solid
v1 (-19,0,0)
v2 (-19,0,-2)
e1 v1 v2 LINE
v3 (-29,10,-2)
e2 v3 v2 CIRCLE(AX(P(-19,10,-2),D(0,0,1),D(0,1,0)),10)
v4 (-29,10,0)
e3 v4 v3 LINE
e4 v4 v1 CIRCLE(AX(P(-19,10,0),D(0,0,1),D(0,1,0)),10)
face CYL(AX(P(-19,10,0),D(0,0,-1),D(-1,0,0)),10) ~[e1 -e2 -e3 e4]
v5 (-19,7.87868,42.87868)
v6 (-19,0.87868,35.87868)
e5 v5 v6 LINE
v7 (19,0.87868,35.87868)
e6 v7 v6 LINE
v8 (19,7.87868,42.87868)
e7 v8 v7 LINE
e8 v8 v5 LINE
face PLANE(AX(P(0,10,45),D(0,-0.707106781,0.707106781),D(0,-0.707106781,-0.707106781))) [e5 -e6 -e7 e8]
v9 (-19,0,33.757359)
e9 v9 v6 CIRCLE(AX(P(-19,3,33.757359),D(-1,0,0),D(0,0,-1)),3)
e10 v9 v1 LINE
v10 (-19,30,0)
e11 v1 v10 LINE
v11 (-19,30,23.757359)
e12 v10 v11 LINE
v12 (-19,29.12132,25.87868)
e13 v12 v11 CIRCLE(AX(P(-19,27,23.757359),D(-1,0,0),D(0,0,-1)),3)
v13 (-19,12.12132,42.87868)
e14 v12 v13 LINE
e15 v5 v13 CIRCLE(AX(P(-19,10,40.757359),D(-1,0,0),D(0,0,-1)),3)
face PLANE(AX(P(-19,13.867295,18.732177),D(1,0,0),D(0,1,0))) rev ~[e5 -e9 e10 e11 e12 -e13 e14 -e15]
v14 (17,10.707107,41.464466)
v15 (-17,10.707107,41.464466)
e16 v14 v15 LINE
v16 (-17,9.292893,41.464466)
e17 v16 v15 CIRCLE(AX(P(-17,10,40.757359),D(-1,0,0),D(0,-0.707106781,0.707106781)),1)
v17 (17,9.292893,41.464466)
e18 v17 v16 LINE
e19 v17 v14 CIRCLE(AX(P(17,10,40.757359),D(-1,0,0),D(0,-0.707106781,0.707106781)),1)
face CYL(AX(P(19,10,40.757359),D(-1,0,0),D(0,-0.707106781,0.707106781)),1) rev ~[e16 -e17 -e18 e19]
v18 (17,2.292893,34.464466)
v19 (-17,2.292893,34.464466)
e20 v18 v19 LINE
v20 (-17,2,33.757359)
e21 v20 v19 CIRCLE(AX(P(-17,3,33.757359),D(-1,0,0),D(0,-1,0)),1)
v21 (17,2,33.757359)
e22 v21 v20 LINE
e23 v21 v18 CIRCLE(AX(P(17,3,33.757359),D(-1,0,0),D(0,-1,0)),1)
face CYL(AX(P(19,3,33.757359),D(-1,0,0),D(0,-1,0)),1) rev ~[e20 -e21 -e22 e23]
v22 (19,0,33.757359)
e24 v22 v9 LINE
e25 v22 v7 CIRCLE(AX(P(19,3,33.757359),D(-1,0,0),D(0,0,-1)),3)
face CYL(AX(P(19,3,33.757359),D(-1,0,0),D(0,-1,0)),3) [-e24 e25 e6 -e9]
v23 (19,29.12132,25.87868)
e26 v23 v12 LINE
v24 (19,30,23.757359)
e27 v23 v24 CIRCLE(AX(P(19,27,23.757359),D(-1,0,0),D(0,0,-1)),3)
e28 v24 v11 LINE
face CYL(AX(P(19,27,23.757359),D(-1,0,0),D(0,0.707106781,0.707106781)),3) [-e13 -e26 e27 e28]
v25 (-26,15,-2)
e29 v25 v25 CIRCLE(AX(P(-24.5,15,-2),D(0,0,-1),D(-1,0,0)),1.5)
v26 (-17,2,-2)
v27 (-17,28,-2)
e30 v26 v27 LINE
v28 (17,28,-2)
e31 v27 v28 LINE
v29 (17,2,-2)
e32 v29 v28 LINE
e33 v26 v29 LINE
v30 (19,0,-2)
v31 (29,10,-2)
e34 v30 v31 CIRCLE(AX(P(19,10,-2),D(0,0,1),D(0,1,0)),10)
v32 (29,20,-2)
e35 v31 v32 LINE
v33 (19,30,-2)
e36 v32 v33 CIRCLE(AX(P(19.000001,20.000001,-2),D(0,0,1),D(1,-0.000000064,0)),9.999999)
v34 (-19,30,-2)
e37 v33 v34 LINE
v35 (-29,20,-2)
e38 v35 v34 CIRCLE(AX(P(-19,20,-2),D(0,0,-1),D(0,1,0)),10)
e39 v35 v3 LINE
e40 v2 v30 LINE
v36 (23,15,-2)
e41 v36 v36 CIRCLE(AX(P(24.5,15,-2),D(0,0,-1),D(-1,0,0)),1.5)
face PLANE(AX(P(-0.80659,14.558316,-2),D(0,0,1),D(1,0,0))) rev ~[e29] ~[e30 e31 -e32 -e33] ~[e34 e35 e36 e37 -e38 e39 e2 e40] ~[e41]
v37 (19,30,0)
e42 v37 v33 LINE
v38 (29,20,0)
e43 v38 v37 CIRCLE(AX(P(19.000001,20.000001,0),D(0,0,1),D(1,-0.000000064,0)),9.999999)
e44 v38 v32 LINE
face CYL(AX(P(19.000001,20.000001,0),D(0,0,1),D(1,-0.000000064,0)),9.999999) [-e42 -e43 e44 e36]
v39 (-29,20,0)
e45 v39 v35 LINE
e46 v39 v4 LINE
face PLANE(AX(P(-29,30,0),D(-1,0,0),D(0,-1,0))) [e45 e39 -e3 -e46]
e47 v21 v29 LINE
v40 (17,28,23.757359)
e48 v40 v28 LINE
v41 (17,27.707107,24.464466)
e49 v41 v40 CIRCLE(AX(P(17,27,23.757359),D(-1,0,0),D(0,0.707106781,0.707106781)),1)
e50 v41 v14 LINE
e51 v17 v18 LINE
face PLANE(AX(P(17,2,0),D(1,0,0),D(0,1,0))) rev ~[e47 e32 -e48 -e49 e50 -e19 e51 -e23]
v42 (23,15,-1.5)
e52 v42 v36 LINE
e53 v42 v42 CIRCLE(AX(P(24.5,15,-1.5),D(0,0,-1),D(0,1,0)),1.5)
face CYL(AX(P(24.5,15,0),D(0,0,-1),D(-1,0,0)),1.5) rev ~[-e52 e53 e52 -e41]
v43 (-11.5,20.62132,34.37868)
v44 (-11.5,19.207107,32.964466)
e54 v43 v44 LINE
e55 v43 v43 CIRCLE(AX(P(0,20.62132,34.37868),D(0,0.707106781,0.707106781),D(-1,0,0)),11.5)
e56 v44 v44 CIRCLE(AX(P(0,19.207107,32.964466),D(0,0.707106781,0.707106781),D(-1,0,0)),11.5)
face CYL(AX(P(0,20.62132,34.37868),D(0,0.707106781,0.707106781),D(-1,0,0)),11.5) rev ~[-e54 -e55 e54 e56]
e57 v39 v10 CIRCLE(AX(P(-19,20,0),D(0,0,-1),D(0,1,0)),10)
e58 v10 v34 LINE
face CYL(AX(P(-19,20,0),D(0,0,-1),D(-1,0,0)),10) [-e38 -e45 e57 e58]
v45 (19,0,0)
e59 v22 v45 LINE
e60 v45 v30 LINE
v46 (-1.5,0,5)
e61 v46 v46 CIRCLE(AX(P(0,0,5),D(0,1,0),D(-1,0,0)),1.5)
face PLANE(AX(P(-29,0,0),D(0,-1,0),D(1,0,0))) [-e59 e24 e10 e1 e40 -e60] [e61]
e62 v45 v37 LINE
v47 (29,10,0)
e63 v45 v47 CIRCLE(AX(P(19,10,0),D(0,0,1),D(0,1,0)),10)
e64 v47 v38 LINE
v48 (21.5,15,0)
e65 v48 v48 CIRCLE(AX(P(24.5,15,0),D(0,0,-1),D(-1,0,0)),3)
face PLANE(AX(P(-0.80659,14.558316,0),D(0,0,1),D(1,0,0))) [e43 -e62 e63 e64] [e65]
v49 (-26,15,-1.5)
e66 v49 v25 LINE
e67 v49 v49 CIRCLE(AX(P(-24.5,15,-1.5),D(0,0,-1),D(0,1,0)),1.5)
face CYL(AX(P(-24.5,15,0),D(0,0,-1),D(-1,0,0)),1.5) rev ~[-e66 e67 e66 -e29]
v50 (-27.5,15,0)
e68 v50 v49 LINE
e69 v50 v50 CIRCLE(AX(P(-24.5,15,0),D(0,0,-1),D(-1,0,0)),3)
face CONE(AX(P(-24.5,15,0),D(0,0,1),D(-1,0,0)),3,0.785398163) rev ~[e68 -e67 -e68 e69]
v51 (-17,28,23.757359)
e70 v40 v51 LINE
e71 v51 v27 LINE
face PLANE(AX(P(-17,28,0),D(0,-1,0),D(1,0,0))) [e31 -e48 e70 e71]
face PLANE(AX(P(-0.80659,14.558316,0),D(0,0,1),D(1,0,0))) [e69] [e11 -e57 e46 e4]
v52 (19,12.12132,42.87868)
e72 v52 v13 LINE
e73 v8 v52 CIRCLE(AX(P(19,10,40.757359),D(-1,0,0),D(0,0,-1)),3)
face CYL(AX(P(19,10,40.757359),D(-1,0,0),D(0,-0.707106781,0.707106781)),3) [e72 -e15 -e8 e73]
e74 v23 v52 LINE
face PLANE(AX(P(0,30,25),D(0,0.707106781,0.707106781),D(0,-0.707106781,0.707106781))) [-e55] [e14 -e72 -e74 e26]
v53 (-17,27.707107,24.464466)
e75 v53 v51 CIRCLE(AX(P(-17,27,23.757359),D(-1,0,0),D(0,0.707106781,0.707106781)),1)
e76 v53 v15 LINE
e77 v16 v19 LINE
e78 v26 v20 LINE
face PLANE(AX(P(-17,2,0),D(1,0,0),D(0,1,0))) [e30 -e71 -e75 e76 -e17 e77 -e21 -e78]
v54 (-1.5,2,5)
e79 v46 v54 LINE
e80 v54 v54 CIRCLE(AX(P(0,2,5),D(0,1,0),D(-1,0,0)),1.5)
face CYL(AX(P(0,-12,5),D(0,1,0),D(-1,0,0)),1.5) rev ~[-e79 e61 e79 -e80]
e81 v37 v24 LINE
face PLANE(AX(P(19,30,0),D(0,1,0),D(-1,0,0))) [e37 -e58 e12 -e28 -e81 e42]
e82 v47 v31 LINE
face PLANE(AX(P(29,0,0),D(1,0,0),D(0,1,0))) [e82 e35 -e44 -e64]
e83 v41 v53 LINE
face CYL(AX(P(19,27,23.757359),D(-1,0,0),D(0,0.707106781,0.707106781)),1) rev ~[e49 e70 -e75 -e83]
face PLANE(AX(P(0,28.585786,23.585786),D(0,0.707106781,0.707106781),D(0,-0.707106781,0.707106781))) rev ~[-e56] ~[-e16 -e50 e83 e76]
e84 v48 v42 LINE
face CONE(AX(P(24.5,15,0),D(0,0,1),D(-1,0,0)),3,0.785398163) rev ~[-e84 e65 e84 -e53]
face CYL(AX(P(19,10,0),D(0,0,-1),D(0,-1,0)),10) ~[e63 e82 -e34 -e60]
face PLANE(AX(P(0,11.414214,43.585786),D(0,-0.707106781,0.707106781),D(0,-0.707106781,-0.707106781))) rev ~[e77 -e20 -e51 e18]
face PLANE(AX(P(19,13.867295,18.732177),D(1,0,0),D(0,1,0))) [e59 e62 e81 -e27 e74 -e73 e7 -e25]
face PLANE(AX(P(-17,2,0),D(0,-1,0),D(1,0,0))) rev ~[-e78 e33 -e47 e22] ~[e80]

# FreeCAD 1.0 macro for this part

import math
import FreeCAD as App
import Part
import Sketcher
from FreeCAD import Vector
Q = App.Units.Quantity


def edges_at(feature, points):
    """Names of the edges that pass closest to the given points."""
    edges = feature.Shape.Edges
    near = lambda p: min(range(len(edges)), key=lambda i: edges[i].distToShape(Part.Vertex(*p))[0])
    return sorted({f"Edge{near(p) + 1}" for p in points})


def faces_at(feature, points):
    """Names of the faces that lie closest to the given points."""
    faces = feature.Shape.Faces
    near = lambda p: min(range(len(faces)), key=lambda i: faces[i].distToShape(Part.Vertex(*p))[0])
    return sorted({f"Face{near(p) + 1}" for p in points})

doc = App.newDocument("Part")
params = doc.addObject("Spreadsheet::Sheet", "Params")
for row, (alias, value) in enumerate([
    ("sketch1_width", "30 mm"),
    ("sketch1_height", "35 mm"),
    ("sketch1_height2", "25 mm"),
    ("pad1_length", "19 mm"),
    ("pad1_length2", "19 mm"),
    ("fillet_radius", "3 mm"),
    ("thickness_wall", "2 mm"),
    ("sketch2_radius", "9.999999 mm"),
    ("sketch2_width", "58 mm"),
    ("sketch2_width2", "34 mm"),
    ("sketch2_height", "20 mm"),
    ("sketch2_height2", "26 mm"),
    ("pad2_length", "2 mm"),
    ("sketch3_diameter", "23 mm"),
    ("pocket1_length", "2 mm"),
    ("sketch4_diameter", "3 mm"),
    ("hole_diameter", "3 mm"),
    ("hole_csink_diameter", "6 mm"),
    ("sketch5_diameter", "3 mm"),
    ("hole2_diameter", "3 mm"),
    ("hole2_depth", "12 mm"),
    ("fillet2_radius", "10 mm"),
    ("fillet3_radius", "10 mm"),
    ("fillet4_radius", "10 mm"),
], start=1):
    params.set(f"A{row}", alias)
    params.set(f"B{row}", "=" + value)
    params.setAlias(f"B{row}", alias)

body = doc.addObject("PartDesign::Body", "Body")

sketch1 = body.newObject("Sketcher::SketchObject", "Sketch")
sketch1.AttachmentSupport = (doc.getObject("YZ_Plane"), [""])
sketch1.MapMode = "FlatFace"
sketch1.addGeometry([
    Part.LineSegment(Vector(0, 35, 0), Vector(0, 0, 0)),
    Part.LineSegment(Vector(0, 0, 0), Vector(30, 0, 0)),
    Part.LineSegment(Vector(30, 0, 0), Vector(30, 25, 0)),
    Part.LineSegment(Vector(30, 25, 0), Vector(10, 45, 0)),
    Part.LineSegment(Vector(10, 45, 0), Vector(0, 35, 0)),
], False)
sketch1.addConstraint([
    Sketcher.Constraint("Coincident", 0, 2, 1, 1),
    Sketcher.Constraint("Coincident", 1, 2, 2, 1),
    Sketcher.Constraint("Coincident", 2, 2, 3, 1),
    Sketcher.Constraint("Coincident", 3, 2, 4, 1),
    Sketcher.Constraint("Coincident", 4, 2, 0, 1),
    Sketcher.Constraint("Vertical", 0),
    Sketcher.Constraint("Horizontal", 1),
    Sketcher.Constraint("Vertical", 2),
    Sketcher.Constraint("Coincident", 0, 2, -1, 1),
    Sketcher.Constraint("Perpendicular", 3, 4),
    Sketcher.Constraint("DistanceX", 1, 1, 1, 2, Q("30 mm")),
    Sketcher.Constraint("DistanceY", 0, 2, 0, 1, Q("35 mm")),
    Sketcher.Constraint("DistanceY", 2, 1, 2, 2, Q("25 mm")),
    Sketcher.Constraint("Angle", 3, Q("135 deg")),
])
sketch1.setExpression("Constraints[10]", "Params.sketch1_width")
sketch1.setExpression("Constraints[11]", "Params.sketch1_height")
sketch1.setExpression("Constraints[12]", "Params.sketch1_height2")
pad1 = body.newObject("PartDesign::Pad", "Pad")
pad1.Profile = sketch1
pad1.Type = "TwoLengths"
pad1.setExpression("Length", "Params.pad1_length")
pad1.setExpression("Length2", "Params.pad1_length2")
doc.recompute()

fillet = body.newObject("PartDesign::Fillet", "Fillet")
fillet.Base = (pad1, edges_at(pad1, [(0, 10, 45), (0, 0, 35), (0, 30, 25)]))
fillet.setExpression("Radius", "Params.fillet_radius")
doc.recompute()

thickness = body.newObject("PartDesign::Thickness", "Thickness")
thickness.Base = (fillet, faces_at(fillet, [(0, 15, 0)]))
thickness.setExpression("Value", "Params.thickness_wall")
thickness.Reversed = True
thickness.Join = "Arc"

sketch2 = body.newObject("Sketcher::SketchObject", "Sketch001")
sketch2.AttachmentSupport = (doc.getObject("XY_Plane"), [""])
sketch2.MapMode = "FlatFace"
sketch2.addGeometry([
    Part.LineSegment(Vector(-29, 0, 0), Vector(29, 0, 0)),
    Part.LineSegment(Vector(29, 0, 0), Vector(29, 20, 0)),
    Part.ArcOfCircle(Part.Circle(Vector(19, 20, 0), Vector(0, 0, 1), 10), math.radians(0), math.radians(90)),
    Part.LineSegment(Vector(19, 30, 0), Vector(-29, 30, 0)),
    Part.LineSegment(Vector(-29, 30, 0), Vector(-29, 0, 0)),
    Part.LineSegment(Vector(17, 2, 0), Vector(-17, 2, 0)),
    Part.LineSegment(Vector(-17, 2, 0), Vector(-17, 28, 0)),
    Part.LineSegment(Vector(-17, 28, 0), Vector(17, 28, 0)),
    Part.LineSegment(Vector(17, 28, 0), Vector(17, 2, 0)),
], False)
sketch2.addConstraint([
    Sketcher.Constraint("Coincident", 0, 2, 1, 1),
    Sketcher.Constraint("Tangent", 1, 2, 2, 1),
    Sketcher.Constraint("Tangent", 2, 2, 3, 1),
    Sketcher.Constraint("Coincident", 3, 2, 4, 1),
    Sketcher.Constraint("Coincident", 4, 2, 0, 1),
    Sketcher.Constraint("Coincident", 5, 2, 6, 1),
    Sketcher.Constraint("Coincident", 6, 2, 7, 1),
    Sketcher.Constraint("Coincident", 7, 2, 8, 1),
    Sketcher.Constraint("Coincident", 8, 2, 5, 1),
    Sketcher.Constraint("Horizontal", 0),
    Sketcher.Constraint("Vertical", 1),
    Sketcher.Constraint("Horizontal", 3),
    Sketcher.Constraint("Vertical", 4),
    Sketcher.Constraint("Horizontal", 5),
    Sketcher.Constraint("Vertical", 6),
    Sketcher.Constraint("Horizontal", 7),
    Sketcher.Constraint("Vertical", 8),
    Sketcher.Constraint("Symmetric", 0, 2, 4, 2, -1, 1),
    Sketcher.Constraint("Radius", 2, Q("9.999999 mm")),
    Sketcher.Constraint("DistanceX", 0, 1, 0, 2, Q("58 mm")),
    Sketcher.Constraint("DistanceX", 5, 2, 5, 1, Q("34 mm")),
    Sketcher.Constraint("DistanceY", 1, 1, 1, 2, Q("20 mm")),
    Sketcher.Constraint("DistanceY", 6, 1, 6, 2, Q("26 mm")),
    Sketcher.Constraint("DistanceX", 5, 2, -1, 1, Q("17 mm")),
    Sketcher.Constraint("DistanceY", -1, 1, 5, 2, Q("2 mm")),
])
sketch2.setExpression("Constraints[18]", "Params.sketch2_radius")
sketch2.setExpression("Constraints[19]", "Params.sketch2_width")
sketch2.setExpression("Constraints[20]", "Params.sketch2_width2")
sketch2.setExpression("Constraints[21]", "Params.sketch2_height")
sketch2.setExpression("Constraints[22]", "Params.sketch2_height2")
pad2 = body.newObject("PartDesign::Pad", "Pad001")
pad2.Profile = sketch2
pad2.setExpression("Length", "Params.pad2_length")
pad2.Reversed = True

sketch3 = body.newObject("Sketcher::SketchObject", "Sketch002")
sketch3.Placement = App.Placement(Vector(0, 27.5, 27.5), App.Rotation(Vector(-1, 0, 0), Vector(0, -0.707106781, 0.707106781), Vector(0, 0.707106781, 0.707106781), "ZXY"))
sketch3.addGeometry(Part.Circle(Vector(0, 10, 0), Vector(0, 0, 1), 12), False)
sketch3.addConstraint([
    Sketcher.Constraint("PointOnObject", 0, 3, -2),
    Sketcher.Constraint("Diameter", 0, Q("23 mm")),
    Sketcher.Constraint("DistanceY", -1, 1, 0, 3, Q("9.727922 mm")),
])
sketch3.setExpression("Constraints[1]", "Params.sketch3_diameter")
pocket1 = body.newObject("PartDesign::Pocket", "Pocket")
pocket1.Profile = sketch3
pocket1.setExpression("Length", "Params.pocket1_length")

sketch4 = body.newObject("Sketcher::SketchObject", "Sketch003")
sketch4.AttachmentSupport = (doc.getObject("XY_Plane"), [""])
sketch4.MapMode = "FlatFace"
sketch4.addGeometry([
    Part.Circle(Vector(24.5, 15, 0), Vector(0, 0, 1), 1.5),
    Part.Circle(Vector(-24.5, 15, 0), Vector(0, 0, 1), 1.5),
], False)
sketch4.addConstraint([
    Sketcher.Constraint("Equal", 0, 1),
    Sketcher.Constraint("Symmetric", 0, 3, 1, 3, -2),
    Sketcher.Constraint("Diameter", 0, Q("3 mm")),
    Sketcher.Constraint("DistanceY", -1, 1, 0, 3, Q("15 mm")),
    Sketcher.Constraint("DistanceX", 1, 3, 0, 3, Q("49 mm")),
])
sketch4.setExpression("Constraints[2]", "Params.sketch4_diameter")
doc.recompute()
hole = body.newObject("PartDesign::Hole", "Hole")
hole.Profile = sketch4
hole.ThreadType = "None"
hole.setExpression("Diameter", "Params.hole_diameter")
hole.DepthType = "ThroughAll"
hole.HoleCutType = "Countersink"
hole.setExpression("HoleCutDiameter", "Params.hole_csink_diameter")
hole.HoleCutCountersinkAngle = 90

sketch5 = body.newObject("Sketcher::SketchObject", "Sketch004")
sketch5.AttachmentSupport = (doc.getObject("XZ_Plane"), [""])
sketch5.MapMode = "FlatFace"
sketch5.addGeometry(Part.Circle(Vector(0, 5, 0), Vector(0, 0, 1), 1.5), False)
sketch5.addConstraint([
    Sketcher.Constraint("PointOnObject", 0, 3, -2),
    Sketcher.Constraint("Diameter", 0, Q("3 mm")),
    Sketcher.Constraint("DistanceY", -1, 1, 0, 3, Q("5 mm")),
])
sketch5.setExpression("Constraints[1]", "Params.sketch5_diameter")
doc.recompute()
hole2 = body.newObject("PartDesign::Hole", "Hole001")
hole2.Profile = sketch5
hole2.ThreadType = "None"
hole2.setExpression("Diameter", "Params.hole2_diameter")
hole2.DepthType = "Dimension"
hole2.setExpression("Depth", "Params.hole2_depth")
hole2.DrillPoint = "Flat"
doc.recompute()

fillet2 = body.newObject("PartDesign::Fillet", "Fillet001")
fillet2.Base = (hole2, edges_at(hole2, [(29, 0, -1)]))
fillet2.setExpression("Radius", "Params.fillet2_radius")
doc.recompute()

fillet3 = body.newObject("PartDesign::Fillet", "Fillet002")
fillet3.Base = (fillet2, edges_at(fillet2, [(-29, 30, -1)]))
fillet3.setExpression("Radius", "Params.fillet3_radius")
doc.recompute()

fillet4 = body.newObject("PartDesign::Fillet", "Fillet003")
fillet4.Base = (fillet3, edges_at(fillet3, [(-29, 0, -1)]))
fillet4.setExpression("Radius", "Params.fillet4_radius")

doc.recompute()
